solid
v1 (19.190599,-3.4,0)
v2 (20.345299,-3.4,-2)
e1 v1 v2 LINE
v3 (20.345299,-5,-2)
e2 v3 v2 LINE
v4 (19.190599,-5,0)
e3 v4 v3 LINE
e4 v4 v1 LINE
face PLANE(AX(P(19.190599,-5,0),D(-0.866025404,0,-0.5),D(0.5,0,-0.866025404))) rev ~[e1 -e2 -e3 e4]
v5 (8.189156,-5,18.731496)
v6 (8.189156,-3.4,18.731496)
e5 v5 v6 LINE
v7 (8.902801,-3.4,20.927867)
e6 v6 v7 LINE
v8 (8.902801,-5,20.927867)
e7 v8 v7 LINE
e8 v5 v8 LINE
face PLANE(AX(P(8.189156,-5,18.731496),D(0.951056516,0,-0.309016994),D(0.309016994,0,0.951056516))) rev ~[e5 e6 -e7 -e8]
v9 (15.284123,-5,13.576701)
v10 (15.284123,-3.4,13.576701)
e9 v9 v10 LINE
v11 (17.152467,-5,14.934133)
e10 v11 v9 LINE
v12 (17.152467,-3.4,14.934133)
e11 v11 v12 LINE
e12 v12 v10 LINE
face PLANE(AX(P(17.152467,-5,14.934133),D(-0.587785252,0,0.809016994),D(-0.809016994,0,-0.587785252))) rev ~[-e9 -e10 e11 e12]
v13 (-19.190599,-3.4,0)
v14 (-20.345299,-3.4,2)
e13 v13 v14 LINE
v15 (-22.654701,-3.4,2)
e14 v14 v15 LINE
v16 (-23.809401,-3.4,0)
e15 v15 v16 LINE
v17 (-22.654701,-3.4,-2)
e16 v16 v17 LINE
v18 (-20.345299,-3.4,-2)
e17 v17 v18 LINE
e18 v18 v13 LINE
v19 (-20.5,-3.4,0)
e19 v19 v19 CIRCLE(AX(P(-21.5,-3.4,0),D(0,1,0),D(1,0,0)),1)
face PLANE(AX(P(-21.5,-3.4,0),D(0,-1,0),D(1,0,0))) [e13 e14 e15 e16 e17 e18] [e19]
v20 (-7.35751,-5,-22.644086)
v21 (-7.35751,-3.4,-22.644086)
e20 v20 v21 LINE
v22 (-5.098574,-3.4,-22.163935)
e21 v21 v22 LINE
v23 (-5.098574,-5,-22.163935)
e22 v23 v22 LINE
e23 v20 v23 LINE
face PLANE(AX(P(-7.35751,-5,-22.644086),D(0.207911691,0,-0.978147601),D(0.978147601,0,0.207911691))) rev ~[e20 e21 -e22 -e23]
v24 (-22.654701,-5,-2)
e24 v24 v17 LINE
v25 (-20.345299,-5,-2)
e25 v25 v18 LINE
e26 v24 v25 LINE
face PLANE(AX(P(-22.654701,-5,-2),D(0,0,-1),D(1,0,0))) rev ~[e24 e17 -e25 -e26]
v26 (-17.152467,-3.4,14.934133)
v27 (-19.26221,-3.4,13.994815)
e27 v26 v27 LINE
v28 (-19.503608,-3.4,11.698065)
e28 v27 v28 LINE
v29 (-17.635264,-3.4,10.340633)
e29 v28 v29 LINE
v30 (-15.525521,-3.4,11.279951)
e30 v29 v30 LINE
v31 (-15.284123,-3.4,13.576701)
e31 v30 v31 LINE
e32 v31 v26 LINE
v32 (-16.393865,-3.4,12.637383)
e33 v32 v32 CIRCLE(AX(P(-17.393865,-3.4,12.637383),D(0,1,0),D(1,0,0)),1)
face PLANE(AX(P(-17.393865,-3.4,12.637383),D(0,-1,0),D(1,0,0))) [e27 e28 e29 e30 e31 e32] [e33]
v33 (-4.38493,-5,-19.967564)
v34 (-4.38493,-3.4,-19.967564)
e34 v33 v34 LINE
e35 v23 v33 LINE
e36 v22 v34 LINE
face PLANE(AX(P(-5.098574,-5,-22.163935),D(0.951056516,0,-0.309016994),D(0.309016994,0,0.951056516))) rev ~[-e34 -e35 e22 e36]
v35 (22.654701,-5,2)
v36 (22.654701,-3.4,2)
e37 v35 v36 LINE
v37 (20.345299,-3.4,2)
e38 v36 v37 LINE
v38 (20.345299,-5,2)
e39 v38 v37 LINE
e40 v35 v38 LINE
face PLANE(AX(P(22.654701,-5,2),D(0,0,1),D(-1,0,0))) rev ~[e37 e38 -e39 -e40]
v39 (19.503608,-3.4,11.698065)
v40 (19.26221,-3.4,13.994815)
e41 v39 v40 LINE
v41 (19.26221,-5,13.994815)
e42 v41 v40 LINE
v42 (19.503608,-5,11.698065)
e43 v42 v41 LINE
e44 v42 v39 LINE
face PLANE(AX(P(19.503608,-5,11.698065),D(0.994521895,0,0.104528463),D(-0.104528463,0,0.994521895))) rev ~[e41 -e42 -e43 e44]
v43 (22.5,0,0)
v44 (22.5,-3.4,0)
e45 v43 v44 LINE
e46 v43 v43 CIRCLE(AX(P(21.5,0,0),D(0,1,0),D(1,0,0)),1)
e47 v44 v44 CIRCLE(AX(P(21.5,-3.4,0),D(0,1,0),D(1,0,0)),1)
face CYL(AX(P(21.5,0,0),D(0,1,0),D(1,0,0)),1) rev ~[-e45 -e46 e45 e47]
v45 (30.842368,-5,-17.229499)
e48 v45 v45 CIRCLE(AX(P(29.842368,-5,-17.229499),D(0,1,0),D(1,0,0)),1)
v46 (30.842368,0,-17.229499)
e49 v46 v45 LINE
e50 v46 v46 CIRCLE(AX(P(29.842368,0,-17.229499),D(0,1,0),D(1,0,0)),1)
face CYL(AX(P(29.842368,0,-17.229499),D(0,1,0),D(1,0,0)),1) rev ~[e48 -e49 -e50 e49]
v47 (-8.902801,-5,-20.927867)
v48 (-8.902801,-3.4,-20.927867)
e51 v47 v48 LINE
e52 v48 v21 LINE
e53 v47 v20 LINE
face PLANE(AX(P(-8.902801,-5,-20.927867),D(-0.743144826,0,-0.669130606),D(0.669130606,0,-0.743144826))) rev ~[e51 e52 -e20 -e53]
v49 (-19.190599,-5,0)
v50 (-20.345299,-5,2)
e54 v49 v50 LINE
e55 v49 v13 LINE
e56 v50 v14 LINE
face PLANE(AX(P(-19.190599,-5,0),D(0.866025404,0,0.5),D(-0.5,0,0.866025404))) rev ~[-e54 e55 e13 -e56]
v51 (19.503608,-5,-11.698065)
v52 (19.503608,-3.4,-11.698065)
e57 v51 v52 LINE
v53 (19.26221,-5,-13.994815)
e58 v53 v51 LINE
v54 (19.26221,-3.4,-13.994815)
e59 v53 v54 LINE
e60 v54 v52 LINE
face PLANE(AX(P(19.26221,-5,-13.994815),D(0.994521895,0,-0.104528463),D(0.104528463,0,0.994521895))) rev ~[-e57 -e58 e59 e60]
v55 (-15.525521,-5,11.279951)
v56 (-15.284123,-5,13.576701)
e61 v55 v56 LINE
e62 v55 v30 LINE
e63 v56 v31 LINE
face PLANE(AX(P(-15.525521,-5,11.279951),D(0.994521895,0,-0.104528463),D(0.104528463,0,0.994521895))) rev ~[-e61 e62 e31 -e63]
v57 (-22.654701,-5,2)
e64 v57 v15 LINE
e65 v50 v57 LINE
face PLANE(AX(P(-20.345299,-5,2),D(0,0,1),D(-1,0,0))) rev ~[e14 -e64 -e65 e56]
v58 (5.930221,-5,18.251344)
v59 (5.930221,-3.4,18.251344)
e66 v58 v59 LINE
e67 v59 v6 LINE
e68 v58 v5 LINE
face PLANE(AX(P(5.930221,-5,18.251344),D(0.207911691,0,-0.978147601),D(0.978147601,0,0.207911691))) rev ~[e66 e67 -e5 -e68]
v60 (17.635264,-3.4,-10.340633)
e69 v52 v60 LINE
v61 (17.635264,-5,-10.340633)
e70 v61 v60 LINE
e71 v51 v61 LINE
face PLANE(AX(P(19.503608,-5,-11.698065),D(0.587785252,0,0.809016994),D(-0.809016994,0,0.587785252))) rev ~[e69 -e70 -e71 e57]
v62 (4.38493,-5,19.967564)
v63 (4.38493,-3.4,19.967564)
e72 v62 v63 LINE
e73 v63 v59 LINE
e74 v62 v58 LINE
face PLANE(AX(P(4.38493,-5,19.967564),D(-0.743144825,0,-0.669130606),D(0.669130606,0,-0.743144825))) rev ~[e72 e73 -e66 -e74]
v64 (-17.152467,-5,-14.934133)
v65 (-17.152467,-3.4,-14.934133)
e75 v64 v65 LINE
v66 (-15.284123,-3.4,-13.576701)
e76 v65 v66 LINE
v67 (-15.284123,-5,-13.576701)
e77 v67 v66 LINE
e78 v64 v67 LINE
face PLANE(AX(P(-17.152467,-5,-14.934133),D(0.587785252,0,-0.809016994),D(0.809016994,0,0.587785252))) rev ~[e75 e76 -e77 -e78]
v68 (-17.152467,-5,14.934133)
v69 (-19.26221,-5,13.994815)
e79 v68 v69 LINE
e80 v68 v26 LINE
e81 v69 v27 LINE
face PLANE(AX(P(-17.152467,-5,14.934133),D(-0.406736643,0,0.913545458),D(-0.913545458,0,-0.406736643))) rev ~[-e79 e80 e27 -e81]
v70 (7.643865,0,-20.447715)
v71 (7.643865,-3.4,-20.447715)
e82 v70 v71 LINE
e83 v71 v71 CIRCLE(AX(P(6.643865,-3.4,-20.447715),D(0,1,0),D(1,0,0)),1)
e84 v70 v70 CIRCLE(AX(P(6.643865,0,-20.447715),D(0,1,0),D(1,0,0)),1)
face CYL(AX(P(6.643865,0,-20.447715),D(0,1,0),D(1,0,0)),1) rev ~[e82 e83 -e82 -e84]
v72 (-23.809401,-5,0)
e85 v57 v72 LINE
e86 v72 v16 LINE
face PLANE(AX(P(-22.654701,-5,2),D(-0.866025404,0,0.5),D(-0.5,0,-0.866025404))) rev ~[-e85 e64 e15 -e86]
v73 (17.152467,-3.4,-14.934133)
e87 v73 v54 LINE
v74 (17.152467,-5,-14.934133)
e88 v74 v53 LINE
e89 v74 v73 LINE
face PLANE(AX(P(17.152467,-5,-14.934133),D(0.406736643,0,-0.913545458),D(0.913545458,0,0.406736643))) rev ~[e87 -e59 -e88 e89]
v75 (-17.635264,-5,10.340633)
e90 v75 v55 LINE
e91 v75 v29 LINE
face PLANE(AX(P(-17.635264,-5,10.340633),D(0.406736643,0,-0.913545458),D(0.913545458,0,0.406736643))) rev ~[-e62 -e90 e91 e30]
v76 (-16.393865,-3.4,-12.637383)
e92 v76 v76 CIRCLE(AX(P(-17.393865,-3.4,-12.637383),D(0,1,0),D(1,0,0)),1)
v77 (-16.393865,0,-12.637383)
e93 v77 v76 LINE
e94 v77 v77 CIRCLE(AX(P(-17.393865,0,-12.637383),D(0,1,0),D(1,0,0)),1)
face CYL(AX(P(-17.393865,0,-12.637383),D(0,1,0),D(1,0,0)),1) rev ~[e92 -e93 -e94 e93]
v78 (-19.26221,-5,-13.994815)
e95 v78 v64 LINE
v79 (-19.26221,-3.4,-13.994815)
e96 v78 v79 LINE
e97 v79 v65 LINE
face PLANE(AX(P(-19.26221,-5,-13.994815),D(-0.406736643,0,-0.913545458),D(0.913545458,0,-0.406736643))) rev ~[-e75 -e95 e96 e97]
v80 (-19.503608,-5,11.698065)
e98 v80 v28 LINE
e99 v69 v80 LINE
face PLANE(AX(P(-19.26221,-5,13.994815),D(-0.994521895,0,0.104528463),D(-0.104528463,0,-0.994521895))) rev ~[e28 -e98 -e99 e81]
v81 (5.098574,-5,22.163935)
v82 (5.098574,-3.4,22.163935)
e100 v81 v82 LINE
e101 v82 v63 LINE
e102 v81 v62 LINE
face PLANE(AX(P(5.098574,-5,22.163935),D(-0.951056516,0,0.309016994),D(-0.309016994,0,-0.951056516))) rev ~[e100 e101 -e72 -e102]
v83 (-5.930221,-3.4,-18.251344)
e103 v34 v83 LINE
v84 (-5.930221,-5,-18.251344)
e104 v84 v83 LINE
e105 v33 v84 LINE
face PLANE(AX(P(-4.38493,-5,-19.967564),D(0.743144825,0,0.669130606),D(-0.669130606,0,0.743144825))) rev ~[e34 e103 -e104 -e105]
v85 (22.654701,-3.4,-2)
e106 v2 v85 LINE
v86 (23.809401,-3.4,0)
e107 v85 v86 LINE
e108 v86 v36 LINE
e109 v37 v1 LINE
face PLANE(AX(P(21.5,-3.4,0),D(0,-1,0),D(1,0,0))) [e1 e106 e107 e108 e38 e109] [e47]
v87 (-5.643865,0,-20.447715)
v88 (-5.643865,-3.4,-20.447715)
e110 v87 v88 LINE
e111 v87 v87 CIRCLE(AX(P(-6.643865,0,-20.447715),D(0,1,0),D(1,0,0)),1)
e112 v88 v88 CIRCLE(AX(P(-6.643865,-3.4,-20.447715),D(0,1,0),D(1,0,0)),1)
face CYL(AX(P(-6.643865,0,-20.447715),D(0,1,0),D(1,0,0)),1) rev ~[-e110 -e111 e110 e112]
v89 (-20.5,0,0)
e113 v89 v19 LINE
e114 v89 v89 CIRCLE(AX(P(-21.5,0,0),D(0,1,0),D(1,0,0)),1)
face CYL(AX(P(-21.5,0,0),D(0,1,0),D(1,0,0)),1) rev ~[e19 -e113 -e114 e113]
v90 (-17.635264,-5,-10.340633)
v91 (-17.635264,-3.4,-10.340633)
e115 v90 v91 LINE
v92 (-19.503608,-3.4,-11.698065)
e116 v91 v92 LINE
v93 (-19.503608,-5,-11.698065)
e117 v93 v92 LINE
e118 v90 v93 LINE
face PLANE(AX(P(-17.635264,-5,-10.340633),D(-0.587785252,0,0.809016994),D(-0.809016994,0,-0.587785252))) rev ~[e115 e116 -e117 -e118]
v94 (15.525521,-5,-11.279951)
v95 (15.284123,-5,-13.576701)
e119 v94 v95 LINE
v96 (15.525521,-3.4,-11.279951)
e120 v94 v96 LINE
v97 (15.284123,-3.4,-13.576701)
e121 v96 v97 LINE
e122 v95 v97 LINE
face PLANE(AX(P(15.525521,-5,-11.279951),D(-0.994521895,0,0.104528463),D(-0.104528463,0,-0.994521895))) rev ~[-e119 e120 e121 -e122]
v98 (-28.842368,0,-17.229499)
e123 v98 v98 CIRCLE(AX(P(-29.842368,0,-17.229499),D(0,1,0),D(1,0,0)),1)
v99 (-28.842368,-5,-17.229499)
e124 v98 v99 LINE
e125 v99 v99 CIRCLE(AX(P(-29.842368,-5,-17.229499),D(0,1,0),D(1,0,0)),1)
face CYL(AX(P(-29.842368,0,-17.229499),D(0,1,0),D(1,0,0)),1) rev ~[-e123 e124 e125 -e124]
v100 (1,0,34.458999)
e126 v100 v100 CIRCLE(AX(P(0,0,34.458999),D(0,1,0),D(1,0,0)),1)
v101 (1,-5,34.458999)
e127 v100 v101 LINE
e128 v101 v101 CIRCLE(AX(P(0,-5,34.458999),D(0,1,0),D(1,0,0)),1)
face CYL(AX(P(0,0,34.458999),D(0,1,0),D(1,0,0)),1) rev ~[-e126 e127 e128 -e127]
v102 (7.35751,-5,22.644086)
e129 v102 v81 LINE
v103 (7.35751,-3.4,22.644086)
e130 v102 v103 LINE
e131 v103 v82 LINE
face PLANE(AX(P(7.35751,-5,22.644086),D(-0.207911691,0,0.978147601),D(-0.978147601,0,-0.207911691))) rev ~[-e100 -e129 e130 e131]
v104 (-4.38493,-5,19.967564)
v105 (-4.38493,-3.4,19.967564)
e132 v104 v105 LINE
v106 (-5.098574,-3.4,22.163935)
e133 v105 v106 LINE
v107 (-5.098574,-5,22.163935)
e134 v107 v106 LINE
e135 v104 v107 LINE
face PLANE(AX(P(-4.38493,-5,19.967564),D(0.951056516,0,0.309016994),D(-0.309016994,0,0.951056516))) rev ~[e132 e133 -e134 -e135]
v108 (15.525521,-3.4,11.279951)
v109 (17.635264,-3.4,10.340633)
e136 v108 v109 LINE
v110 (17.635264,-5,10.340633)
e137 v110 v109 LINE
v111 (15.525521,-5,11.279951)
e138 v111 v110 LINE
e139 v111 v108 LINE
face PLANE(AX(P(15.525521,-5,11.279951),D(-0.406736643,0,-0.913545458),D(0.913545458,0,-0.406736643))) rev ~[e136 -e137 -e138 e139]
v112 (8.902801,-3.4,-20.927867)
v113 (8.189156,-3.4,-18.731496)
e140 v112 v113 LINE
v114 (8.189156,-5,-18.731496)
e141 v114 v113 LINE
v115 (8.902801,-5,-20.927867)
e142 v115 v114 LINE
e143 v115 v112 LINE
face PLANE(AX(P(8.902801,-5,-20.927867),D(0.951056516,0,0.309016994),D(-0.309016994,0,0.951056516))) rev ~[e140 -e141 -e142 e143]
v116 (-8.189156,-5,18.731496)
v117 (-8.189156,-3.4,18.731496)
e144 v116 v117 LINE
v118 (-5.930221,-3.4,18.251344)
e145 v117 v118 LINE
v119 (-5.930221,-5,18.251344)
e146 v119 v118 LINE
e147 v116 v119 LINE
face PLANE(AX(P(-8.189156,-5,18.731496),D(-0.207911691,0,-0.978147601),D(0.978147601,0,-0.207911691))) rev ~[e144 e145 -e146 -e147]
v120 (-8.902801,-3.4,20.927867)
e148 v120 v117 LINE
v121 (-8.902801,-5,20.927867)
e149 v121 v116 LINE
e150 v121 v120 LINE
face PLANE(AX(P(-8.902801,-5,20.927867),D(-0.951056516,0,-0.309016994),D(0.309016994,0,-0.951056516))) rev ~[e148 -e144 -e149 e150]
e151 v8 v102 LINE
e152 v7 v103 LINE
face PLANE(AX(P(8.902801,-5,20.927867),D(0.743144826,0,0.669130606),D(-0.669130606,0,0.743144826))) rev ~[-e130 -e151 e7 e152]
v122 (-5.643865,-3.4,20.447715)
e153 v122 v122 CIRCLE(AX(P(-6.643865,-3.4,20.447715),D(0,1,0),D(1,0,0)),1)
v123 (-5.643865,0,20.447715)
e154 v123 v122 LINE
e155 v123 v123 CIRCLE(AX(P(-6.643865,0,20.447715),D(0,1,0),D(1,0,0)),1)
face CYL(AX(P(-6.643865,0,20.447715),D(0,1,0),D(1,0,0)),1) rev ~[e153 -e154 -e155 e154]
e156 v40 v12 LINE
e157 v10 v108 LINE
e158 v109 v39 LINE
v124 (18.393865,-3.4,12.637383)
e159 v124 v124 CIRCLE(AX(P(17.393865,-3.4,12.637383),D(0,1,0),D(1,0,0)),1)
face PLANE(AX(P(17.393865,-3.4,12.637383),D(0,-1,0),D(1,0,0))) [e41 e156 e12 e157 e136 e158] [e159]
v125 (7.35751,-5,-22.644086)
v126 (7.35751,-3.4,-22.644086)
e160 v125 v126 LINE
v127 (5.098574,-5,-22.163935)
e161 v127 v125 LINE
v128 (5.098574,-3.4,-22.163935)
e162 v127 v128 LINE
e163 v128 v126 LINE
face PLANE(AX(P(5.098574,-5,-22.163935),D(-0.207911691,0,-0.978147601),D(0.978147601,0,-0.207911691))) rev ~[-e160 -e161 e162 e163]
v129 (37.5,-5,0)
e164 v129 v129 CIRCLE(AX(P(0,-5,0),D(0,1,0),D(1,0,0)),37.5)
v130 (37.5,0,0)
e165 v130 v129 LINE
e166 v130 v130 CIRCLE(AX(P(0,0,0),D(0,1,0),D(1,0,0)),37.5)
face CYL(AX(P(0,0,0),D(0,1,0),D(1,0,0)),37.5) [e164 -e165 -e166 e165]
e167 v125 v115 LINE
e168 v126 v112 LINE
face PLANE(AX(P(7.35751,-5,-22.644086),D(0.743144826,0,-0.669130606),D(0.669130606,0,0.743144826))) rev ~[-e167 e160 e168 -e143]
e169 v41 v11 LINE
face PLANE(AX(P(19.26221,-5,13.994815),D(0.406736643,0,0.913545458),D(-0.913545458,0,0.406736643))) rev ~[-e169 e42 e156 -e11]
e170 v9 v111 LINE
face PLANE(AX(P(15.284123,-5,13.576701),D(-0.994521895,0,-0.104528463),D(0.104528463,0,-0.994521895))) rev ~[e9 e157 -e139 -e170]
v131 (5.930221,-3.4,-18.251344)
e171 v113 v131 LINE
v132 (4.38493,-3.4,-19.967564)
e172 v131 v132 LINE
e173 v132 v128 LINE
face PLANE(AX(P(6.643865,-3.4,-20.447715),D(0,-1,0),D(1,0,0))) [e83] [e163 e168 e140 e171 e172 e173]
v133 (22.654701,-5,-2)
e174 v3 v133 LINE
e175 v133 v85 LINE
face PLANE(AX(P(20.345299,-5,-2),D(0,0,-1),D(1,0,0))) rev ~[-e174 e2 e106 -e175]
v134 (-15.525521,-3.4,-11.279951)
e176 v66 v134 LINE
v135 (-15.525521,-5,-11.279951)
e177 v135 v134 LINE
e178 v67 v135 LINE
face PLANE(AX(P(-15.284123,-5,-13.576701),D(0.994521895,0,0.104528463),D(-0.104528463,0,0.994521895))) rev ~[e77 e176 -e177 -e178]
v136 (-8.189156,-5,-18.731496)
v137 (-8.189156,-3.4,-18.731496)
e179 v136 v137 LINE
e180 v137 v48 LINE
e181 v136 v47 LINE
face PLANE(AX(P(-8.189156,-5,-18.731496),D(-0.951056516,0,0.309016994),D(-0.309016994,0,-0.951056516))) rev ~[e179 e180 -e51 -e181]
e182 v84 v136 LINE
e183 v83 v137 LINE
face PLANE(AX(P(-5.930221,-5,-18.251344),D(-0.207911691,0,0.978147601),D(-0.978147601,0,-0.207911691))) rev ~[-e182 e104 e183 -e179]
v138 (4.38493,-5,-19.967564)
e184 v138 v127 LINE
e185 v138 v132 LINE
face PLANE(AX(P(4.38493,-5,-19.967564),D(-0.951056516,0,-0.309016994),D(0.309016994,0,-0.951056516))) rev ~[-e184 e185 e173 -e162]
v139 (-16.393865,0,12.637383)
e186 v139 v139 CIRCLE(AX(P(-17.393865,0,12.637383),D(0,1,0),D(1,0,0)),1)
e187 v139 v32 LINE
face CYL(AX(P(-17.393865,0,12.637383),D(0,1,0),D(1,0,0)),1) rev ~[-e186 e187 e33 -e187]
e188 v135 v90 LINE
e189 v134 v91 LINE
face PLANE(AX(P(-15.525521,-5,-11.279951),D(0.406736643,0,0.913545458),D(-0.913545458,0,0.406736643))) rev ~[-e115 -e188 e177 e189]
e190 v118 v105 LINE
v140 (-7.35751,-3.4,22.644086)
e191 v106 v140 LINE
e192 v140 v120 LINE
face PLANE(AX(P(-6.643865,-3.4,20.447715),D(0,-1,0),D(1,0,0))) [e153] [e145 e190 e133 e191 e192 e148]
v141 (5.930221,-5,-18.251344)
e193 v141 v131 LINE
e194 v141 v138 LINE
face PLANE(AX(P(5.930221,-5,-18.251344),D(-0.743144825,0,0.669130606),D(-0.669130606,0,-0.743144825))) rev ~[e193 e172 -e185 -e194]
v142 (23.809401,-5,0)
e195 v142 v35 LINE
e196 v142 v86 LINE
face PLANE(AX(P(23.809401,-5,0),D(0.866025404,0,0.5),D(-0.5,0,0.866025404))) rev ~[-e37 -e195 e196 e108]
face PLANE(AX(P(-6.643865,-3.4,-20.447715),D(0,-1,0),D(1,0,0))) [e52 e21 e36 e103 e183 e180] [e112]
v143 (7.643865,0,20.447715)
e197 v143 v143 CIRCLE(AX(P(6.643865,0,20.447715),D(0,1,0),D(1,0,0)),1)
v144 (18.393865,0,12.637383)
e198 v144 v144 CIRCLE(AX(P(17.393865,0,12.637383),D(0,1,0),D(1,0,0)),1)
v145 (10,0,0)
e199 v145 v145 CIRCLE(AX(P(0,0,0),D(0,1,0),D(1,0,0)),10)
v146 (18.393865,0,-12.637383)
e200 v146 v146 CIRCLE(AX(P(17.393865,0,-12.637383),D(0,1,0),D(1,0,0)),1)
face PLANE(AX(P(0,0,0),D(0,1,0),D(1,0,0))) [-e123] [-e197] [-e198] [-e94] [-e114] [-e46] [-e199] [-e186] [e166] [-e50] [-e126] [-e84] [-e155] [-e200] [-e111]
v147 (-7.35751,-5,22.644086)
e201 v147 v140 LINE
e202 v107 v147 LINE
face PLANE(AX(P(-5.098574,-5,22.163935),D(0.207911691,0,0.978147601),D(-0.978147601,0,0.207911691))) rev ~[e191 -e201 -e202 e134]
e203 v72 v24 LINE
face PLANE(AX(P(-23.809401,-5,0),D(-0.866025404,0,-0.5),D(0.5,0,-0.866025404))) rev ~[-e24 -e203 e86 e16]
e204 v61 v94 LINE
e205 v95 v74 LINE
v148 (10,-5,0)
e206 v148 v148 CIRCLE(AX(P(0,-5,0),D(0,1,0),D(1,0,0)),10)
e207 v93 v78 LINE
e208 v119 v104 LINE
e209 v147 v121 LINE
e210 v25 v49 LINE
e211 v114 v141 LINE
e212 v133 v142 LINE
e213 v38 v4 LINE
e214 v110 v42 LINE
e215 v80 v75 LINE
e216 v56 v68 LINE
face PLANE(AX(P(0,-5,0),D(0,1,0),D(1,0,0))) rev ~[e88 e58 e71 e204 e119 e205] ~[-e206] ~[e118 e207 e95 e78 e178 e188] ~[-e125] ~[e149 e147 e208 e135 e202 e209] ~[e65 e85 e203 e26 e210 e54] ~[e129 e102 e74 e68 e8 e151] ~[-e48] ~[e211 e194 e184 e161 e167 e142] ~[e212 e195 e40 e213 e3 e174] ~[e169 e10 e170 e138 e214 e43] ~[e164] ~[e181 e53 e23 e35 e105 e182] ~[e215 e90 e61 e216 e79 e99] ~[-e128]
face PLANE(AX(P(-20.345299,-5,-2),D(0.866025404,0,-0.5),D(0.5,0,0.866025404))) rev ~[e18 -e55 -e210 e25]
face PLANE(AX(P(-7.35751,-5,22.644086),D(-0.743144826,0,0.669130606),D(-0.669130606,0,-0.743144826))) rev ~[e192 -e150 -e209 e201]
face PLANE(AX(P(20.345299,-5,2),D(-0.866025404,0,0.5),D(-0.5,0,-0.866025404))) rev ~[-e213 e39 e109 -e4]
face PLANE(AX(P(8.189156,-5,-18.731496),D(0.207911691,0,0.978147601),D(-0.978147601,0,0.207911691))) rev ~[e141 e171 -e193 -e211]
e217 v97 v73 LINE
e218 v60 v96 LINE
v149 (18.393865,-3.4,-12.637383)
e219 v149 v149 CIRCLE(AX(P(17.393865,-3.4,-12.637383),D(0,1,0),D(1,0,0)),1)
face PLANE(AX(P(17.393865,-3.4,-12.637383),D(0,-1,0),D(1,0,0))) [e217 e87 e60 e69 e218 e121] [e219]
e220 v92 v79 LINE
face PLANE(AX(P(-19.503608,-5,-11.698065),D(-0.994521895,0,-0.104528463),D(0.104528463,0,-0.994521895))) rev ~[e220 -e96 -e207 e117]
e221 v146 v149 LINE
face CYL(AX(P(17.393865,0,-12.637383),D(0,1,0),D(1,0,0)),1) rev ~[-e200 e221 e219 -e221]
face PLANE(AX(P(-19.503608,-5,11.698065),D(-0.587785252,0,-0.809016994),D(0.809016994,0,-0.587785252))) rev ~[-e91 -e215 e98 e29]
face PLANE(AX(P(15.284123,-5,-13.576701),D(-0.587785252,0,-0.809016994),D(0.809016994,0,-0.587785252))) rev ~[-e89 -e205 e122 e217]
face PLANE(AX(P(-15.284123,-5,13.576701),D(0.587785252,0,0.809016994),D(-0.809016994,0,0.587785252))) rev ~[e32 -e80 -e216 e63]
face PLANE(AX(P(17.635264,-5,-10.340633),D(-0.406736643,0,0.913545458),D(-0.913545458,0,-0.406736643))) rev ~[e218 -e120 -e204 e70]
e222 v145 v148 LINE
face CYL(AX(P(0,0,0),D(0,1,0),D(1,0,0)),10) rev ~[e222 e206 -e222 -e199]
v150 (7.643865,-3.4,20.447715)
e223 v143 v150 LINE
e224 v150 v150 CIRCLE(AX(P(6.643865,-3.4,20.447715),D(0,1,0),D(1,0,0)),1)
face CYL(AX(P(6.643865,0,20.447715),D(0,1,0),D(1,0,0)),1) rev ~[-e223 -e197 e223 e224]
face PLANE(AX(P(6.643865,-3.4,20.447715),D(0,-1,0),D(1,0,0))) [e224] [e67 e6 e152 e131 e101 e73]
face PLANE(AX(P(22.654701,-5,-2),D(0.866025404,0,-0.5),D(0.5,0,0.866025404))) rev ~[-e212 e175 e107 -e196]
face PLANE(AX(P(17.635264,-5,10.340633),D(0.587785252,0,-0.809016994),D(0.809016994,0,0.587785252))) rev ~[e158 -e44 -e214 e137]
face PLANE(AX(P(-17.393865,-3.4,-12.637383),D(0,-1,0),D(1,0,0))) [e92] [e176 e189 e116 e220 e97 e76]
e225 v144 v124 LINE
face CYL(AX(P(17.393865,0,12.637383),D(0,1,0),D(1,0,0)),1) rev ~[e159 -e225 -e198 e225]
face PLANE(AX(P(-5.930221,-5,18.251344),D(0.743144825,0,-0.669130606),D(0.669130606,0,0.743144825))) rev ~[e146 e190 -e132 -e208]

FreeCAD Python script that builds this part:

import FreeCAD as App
import Part
import Sketcher

V = App.Vector
Q = App.Units.Quantity

doc = App.newDocument("Part")
body = doc.addObject("PartDesign::Body", "Body")

# Sketch on XZ plane
sketch1 = body.newObject("Sketcher::SketchObject", "Sketch")
sketch1.AttachmentSupport = (doc.getObject("XZ_Plane"), [""])
sketch1.MapMode = "FlatFace"
sketch1.addGeometry(Part.Circle(V(0, 0, 0), V(0, 0, 1), 37.5), False)
sketch1.addConstraint([
    Sketcher.Constraint("Coincident", 0, 3, -1, 1),
    Sketcher.Constraint("Diameter", 0, Q("75 mm")),
])
pad1 = body.newObject("PartDesign::Pad", "Pad")
pad1.Profile = sketch1
pad1.Length = 5

# Sketch on XZ plane
sketch2 = body.newObject("Sketcher::SketchObject", "Sketch001")
sketch2.AttachmentSupport = (doc.getObject("XZ_Plane"), [""])
sketch2.MapMode = "FlatFace"
sketch2.addGeometry(Part.Circle(V(-21.5, 0, 0), V(0, 0, 1), 1), False)
sketch2.addConstraint([
    Sketcher.Constraint("PointOnObject", 0, 3, -1),
    Sketcher.Constraint("Diameter", 0, Q("2 mm")),
    Sketcher.Constraint("DistanceX", 0, 3, -1, 1, Q("21.5 mm")),
])
pocket1 = body.newObject("PartDesign::Pocket", "Pocket")
pocket1.Profile = sketch2
pocket1.Type = "UpToFirst"
pocket1.Reversed = True

# Sketch on XZ plane
sketch3 = body.newObject("Sketcher::SketchObject", "Sketch002")
sketch3.AttachmentSupport = (doc.getObject("XZ_Plane"), [""])
sketch3.MapMode = "FlatFace"
sketch3.addGeometry(Part.Circle(V(-17.393865, -12.637383, 0), V(0, 0, 1), 1), False)
sketch3.addConstraint([
    Sketcher.Constraint("Diameter", 0, Q("2 mm")),
    Sketcher.Constraint("DistanceX", 0, 3, -1, 1, Q("17.393865 mm")),
    Sketcher.Constraint("DistanceY", 0, 3, -1, 1, Q("12.637383 mm")),
])
pocket2 = body.newObject("PartDesign::Pocket", "Pocket001")
pocket2.Profile = sketch3
pocket2.Type = "UpToFirst"
pocket2.Reversed = True

# Sketch on XZ plane
sketch4 = body.newObject("Sketcher::SketchObject", "Sketch003")
sketch4.AttachmentSupport = (doc.getObject("XZ_Plane"), [""])
sketch4.MapMode = "FlatFace"
sketch4.addGeometry(Part.Circle(V(-6.643865, -20.447715, 0), V(0, 0, 1), 1), False)
sketch4.addConstraint([
    Sketcher.Constraint("Diameter", 0, Q("2 mm")),
    Sketcher.Constraint("DistanceX", 0, 3, -1, 1, Q("6.643865 mm")),
    Sketcher.Constraint("DistanceY", 0, 3, -1, 1, Q("20.447715 mm")),
])
pocket3 = body.newObject("PartDesign::Pocket", "Pocket002")
pocket3.Profile = sketch4
pocket3.Type = "UpToFirst"
pocket3.Reversed = True

# Sketch on XZ plane
sketch5 = body.newObject("Sketcher::SketchObject", "Sketch004")
sketch5.AttachmentSupport = (doc.getObject("XZ_Plane"), [""])
sketch5.MapMode = "FlatFace"
sketch5.addGeometry(Part.Circle(V(6.643865, -20.447715, 0), V(0, 0, 1), 1), False)
sketch5.addConstraint([
    Sketcher.Constraint("Diameter", 0, Q("2 mm")),
    Sketcher.Constraint("DistanceX", -1, 1, 0, 3, Q("6.643865 mm")),
    Sketcher.Constraint("DistanceY", 0, 3, -1, 1, Q("20.447715 mm")),
])
pocket4 = body.newObject("PartDesign::Pocket", "Pocket003")
pocket4.Profile = sketch5
pocket4.Type = "UpToFirst"
pocket4.Reversed = True

# Sketch on XZ plane
sketch6 = body.newObject("Sketcher::SketchObject", "Sketch005")
sketch6.AttachmentSupport = (doc.getObject("XZ_Plane"), [""])
sketch6.MapMode = "FlatFace"
sketch6.addGeometry(Part.Circle(V(17.393865, -12.637383, 0), V(0, 0, 1), 1), False)
sketch6.addConstraint([
    Sketcher.Constraint("Diameter", 0, Q("2 mm")),
    Sketcher.Constraint("DistanceX", -1, 1, 0, 3, Q("17.393865 mm")),
    Sketcher.Constraint("DistanceY", 0, 3, -1, 1, Q("12.637383 mm")),
])
pocket5 = body.newObject("PartDesign::Pocket", "Pocket004")
pocket5.Profile = sketch6
pocket5.Type = "UpToFirst"
pocket5.Reversed = True

# Sketch on XZ plane
sketch7 = body.newObject("Sketcher::SketchObject", "Sketch006")
sketch7.AttachmentSupport = (doc.getObject("XZ_Plane"), [""])
sketch7.MapMode = "FlatFace"
sketch7.addGeometry(Part.Circle(V(21.5, 0, 0), V(0, 0, 1), 1), False)
sketch7.addConstraint([
    Sketcher.Constraint("PointOnObject", 0, 3, -1),
    Sketcher.Constraint("Diameter", 0, Q("2 mm")),
    Sketcher.Constraint("DistanceX", -1, 1, 0, 3, Q("21.5 mm")),
])
pocket6 = body.newObject("PartDesign::Pocket", "Pocket005")
pocket6.Profile = sketch7
pocket6.Type = "UpToFirst"
pocket6.Reversed = True

# Sketch on XZ plane
sketch8 = body.newObject("Sketcher::SketchObject", "Sketch007")
sketch8.AttachmentSupport = (doc.getObject("XZ_Plane"), [""])
sketch8.MapMode = "FlatFace"
sketch8.addGeometry(Part.Circle(V(17.393865, 12.637383, 0), V(0, 0, 1), 1), False)
sketch8.addConstraint([
    Sketcher.Constraint("Diameter", 0, Q("2 mm")),
    Sketcher.Constraint("DistanceX", -1, 1, 0, 3, Q("17.393865 mm")),
    Sketcher.Constraint("DistanceY", -1, 1, 0, 3, Q("12.637383 mm")),
])
pocket7 = body.newObject("PartDesign::Pocket", "Pocket006")
pocket7.Profile = sketch8
pocket7.Type = "UpToFirst"
pocket7.Reversed = True

# Sketch on XZ plane
sketch9 = body.newObject("Sketcher::SketchObject", "Sketch008")
sketch9.AttachmentSupport = (doc.getObject("XZ_Plane"), [""])
sketch9.MapMode = "FlatFace"
sketch9.addGeometry(Part.Circle(V(6.643865, 20.447715, 0), V(0, 0, 1), 1), False)
sketch9.addConstraint([
    Sketcher.Constraint("Diameter", 0, Q("2 mm")),
    Sketcher.Constraint("DistanceX", -1, 1, 0, 3, Q("6.643865 mm")),
    Sketcher.Constraint("DistanceY", -1, 1, 0, 3, Q("20.447715 mm")),
])
pocket8 = body.newObject("PartDesign::Pocket", "Pocket007")
pocket8.Profile = sketch9
pocket8.Type = "UpToFirst"
pocket8.Reversed = True

# Sketch on XZ plane
sketch10 = body.newObject("Sketcher::SketchObject", "Sketch009")
sketch10.AttachmentSupport = (doc.getObject("XZ_Plane"), [""])
sketch10.MapMode = "FlatFace"
sketch10.addGeometry(Part.Circle(V(-6.643865, 20.447715, 0), V(0, 0, 1), 1), False)
sketch10.addConstraint([
    Sketcher.Constraint("Diameter", 0, Q("2 mm")),
    Sketcher.Constraint("DistanceX", 0, 3, -1, 1, Q("6.643865 mm")),
    Sketcher.Constraint("DistanceY", -1, 1, 0, 3, Q("20.447715 mm")),
])
pocket9 = body.newObject("PartDesign::Pocket", "Pocket008")
pocket9.Profile = sketch10
pocket9.Type = "UpToFirst"
pocket9.Reversed = True

# Sketch on XZ plane
sketch11 = body.newObject("Sketcher::SketchObject", "Sketch010")
sketch11.AttachmentSupport = (doc.getObject("XZ_Plane"), [""])
sketch11.MapMode = "FlatFace"
sketch11.addGeometry(Part.Circle(V(-17.393865, 12.637383, 0), V(0, 0, 1), 1), False)
sketch11.addConstraint([
    Sketcher.Constraint("Diameter", 0, Q("2 mm")),
    Sketcher.Constraint("DistanceX", 0, 3, -1, 1, Q("17.393865 mm")),
    Sketcher.Constraint("DistanceY", -1, 1, 0, 3, Q("12.637383 mm")),
])
pocket10 = body.newObject("PartDesign::Pocket", "Pocket009")
pocket10.Profile = sketch11
pocket10.Type = "UpToFirst"
pocket10.Reversed = True

# Sketch on XZ plane
sketch12 = body.newObject("Sketcher::SketchObject", "Sketch011")
sketch12.AttachmentSupport = (doc.getObject("XZ_Plane"), [""])
sketch12.MapMode = "FlatFace"
sketch12.AttachmentOffset = App.Placement(V(0, 0, 5), App.Rotation())
sketch12.addGeometry([
    Part.LineSegment(V(-15.525521, 11.279951, 0), V(-15.284123, 13.576701, 0)),  # 0
    Part.LineSegment(V(-15.284123, 13.576701, 0), V(-17.152467, 14.934133, 0)),  # 1
    Part.LineSegment(V(-17.152467, 14.934133, 0), V(-19.26221, 13.994815, 0)),  # 2
    Part.LineSegment(V(-19.26221, 13.994815, 0), V(-19.503608, 11.698065, 0)),  # 3
    Part.LineSegment(V(-19.503608, 11.698065, 0), V(-17.635264, 10.340633, 0)),  # 4
    Part.LineSegment(V(-17.635264, 10.340633, 0), V(-15.525521, 11.279951, 0)),  # 5
    Part.LineSegment(V(-19.190599, 0, 0), V(-20.345299, 2, 0)),  # 6
    Part.LineSegment(V(-20.345299, 2, 0), V(-22.654701, 2, 0)),  # 7
    Part.LineSegment(V(-22.654701, 2, 0), V(-23.809401, 0, 0)),  # 8
    Part.LineSegment(V(-23.809401, 0, 0), V(-22.654701, -2, 0)),  # 9
    Part.LineSegment(V(-22.654701, -2, 0), V(-20.345299, -2, 0)),  # 10
    Part.LineSegment(V(-20.345299, -2, 0), V(-19.190599, 0, 0)),  # 11
    Part.LineSegment(V(-5.930221, 18.251344, 0), V(-4.38493, 19.967564, 0)),  # 12
    Part.LineSegment(V(-4.38493, 19.967564, 0), V(-5.098574, 22.163935, 0)),  # 13
    Part.LineSegment(V(-5.098574, 22.163935, 0), V(-7.35751, 22.644086, 0)),  # 14
    Part.LineSegment(V(-7.35751, 22.644086, 0), V(-8.902801, 20.927867, 0)),  # 15
    Part.LineSegment(V(-8.902801, 20.927867, 0), V(-8.189156, 18.731496, 0)),  # 16
    Part.LineSegment(V(-8.189156, 18.731496, 0), V(-5.930221, 18.251344, 0)),  # 17
    Part.LineSegment(V(5.930221, 18.251344, 0), V(8.189156, 18.731496, 0)),  # 18
    Part.LineSegment(V(8.189156, 18.731496, 0), V(8.902801, 20.927867, 0)),  # 19
    Part.LineSegment(V(8.902801, 20.927867, 0), V(7.35751, 22.644086, 0)),  # 20
    Part.LineSegment(V(7.35751, 22.644086, 0), V(5.098574, 22.163935, 0)),  # 21
    Part.LineSegment(V(5.098574, 22.163935, 0), V(4.38493, 19.967564, 0)),  # 22
    Part.LineSegment(V(4.38493, 19.967564, 0), V(5.930221, 18.251344, 0)),  # 23
    Part.LineSegment(V(15.525521, 11.279951, 0), V(17.635264, 10.340633, 0)),  # 24
    Part.LineSegment(V(17.635264, 10.340633, 0), V(19.503608, 11.698065, 0)),  # 25
    Part.LineSegment(V(19.503608, 11.698065, 0), V(19.26221, 13.994815, 0)),  # 26
    Part.LineSegment(V(19.26221, 13.994815, 0), V(17.152467, 14.934133, 0)),  # 27
    Part.LineSegment(V(17.152467, 14.934133, 0), V(15.284123, 13.576701, 0)),  # 28
    Part.LineSegment(V(15.284123, 13.576701, 0), V(15.525521, 11.279951, 0)),  # 29
    Part.LineSegment(V(19.190599, 0, 0), V(20.345299, -2, 0)),  # 30
    Part.LineSegment(V(20.345299, -2, 0), V(22.654701, -2, 0)),  # 31
    Part.LineSegment(V(22.654701, -2, 0), V(23.809401, 0, 0)),  # 32
    Part.LineSegment(V(23.809401, 0, 0), V(22.654701, 2, 0)),  # 33
    Part.LineSegment(V(22.654701, 2, 0), V(20.345299, 2, 0)),  # 34
    Part.LineSegment(V(20.345299, 2, 0), V(19.190599, 0, 0)),  # 35
    Part.LineSegment(V(15.525521, -11.279951, 0), V(15.284123, -13.576701, 0)),  # 36
    Part.LineSegment(V(15.284123, -13.576701, 0), V(17.152467, -14.934133, 0)),  # 37
    Part.LineSegment(V(17.152467, -14.934133, 0), V(19.26221, -13.994815, 0)),  # 38
    Part.LineSegment(V(19.26221, -13.994815, 0), V(19.503608, -11.698065, 0)),  # 39
    Part.LineSegment(V(19.503608, -11.698065, 0), V(17.635264, -10.340633, 0)),  # 40
    Part.LineSegment(V(17.635264, -10.340633, 0), V(15.525521, -11.279951, 0)),  # 41
    Part.LineSegment(V(5.930221, -18.251344, 0), V(4.38493, -19.967564, 0)),  # 42
    Part.LineSegment(V(4.38493, -19.967564, 0), V(5.098574, -22.163935, 0)),  # 43
    Part.LineSegment(V(5.098574, -22.163935, 0), V(7.35751, -22.644086, 0)),  # 44
    Part.LineSegment(V(7.35751, -22.644086, 0), V(8.902801, -20.927867, 0)),  # 45
    Part.LineSegment(V(8.902801, -20.927867, 0), V(8.189156, -18.731496, 0)),  # 46
    Part.LineSegment(V(8.189156, -18.731496, 0), V(5.930221, -18.251344, 0)),  # 47
    Part.LineSegment(V(-5.930221, -18.251344, 0), V(-8.189156, -18.731496, 0)),  # 48
    Part.LineSegment(V(-8.189156, -18.731496, 0), V(-8.902801, -20.927867, 0)),  # 49
    Part.LineSegment(V(-8.902801, -20.927867, 0), V(-7.35751, -22.644086, 0)),  # 50
    Part.LineSegment(V(-7.35751, -22.644086, 0), V(-5.098574, -22.163935, 0)),  # 51
    Part.LineSegment(V(-5.098574, -22.163935, 0), V(-4.38493, -19.967564, 0)),  # 52
    Part.LineSegment(V(-4.38493, -19.967564, 0), V(-5.930221, -18.251344, 0)),  # 53
    Part.LineSegment(V(-15.525521, -11.279951, 0), V(-17.635264, -10.340633, 0)),  # 54
    Part.LineSegment(V(-17.635264, -10.340633, 0), V(-19.503608, -11.698065, 0)),  # 55
    Part.LineSegment(V(-19.503608, -11.698065, 0), V(-19.26221, -13.994815, 0)),  # 56
    Part.LineSegment(V(-19.26221, -13.994815, 0), V(-17.152467, -14.934133, 0)),  # 57
    Part.LineSegment(V(-17.152467, -14.934133, 0), V(-15.284123, -13.576701, 0)),  # 58
    Part.LineSegment(V(-15.284123, -13.576701, 0), V(-15.525521, -11.279951, 0)),  # 59
], False)
sketch12.addConstraint([
    Sketcher.Constraint("Coincident", 0, 2, 1, 1),
    Sketcher.Constraint("Coincident", 1, 2, 2, 1),
    Sketcher.Constraint("Coincident", 2, 2, 3, 1),
    Sketcher.Constraint("Coincident", 3, 2, 4, 1),
    Sketcher.Constraint("Coincident", 4, 2, 5, 1),
    Sketcher.Constraint("Coincident", 5, 2, 0, 1),
    Sketcher.Constraint("Coincident", 6, 2, 7, 1),
    Sketcher.Constraint("Coincident", 7, 2, 8, 1),
    Sketcher.Constraint("Coincident", 8, 2, 9, 1),
    Sketcher.Constraint("Coincident", 9, 2, 10, 1),
    Sketcher.Constraint("Coincident", 10, 2, 11, 1),
    Sketcher.Constraint("Coincident", 11, 2, 6, 1),
    Sketcher.Constraint("Coincident", 12, 2, 13, 1),
    Sketcher.Constraint("Coincident", 13, 2, 14, 1),
    Sketcher.Constraint("Coincident", 14, 2, 15, 1),
    Sketcher.Constraint("Coincident", 15, 2, 16, 1),
    Sketcher.Constraint("Coincident", 16, 2, 17, 1),
    Sketcher.Constraint("Coincident", 17, 2, 12, 1),
    Sketcher.Constraint("Coincident", 18, 2, 19, 1),
    Sketcher.Constraint("Coincident", 19, 2, 20, 1),
    Sketcher.Constraint("Coincident", 20, 2, 21, 1),
    Sketcher.Constraint("Coincident", 21, 2, 22, 1),
    Sketcher.Constraint("Coincident", 22, 2, 23, 1),
    Sketcher.Constraint("Coincident", 23, 2, 18, 1),
    Sketcher.Constraint("Coincident", 24, 2, 25, 1),
    Sketcher.Constraint("Coincident", 25, 2, 26, 1),
    Sketcher.Constraint("Coincident", 26, 2, 27, 1),
    Sketcher.Constraint("Coincident", 27, 2, 28, 1),
    Sketcher.Constraint("Coincident", 28, 2, 29, 1),
    Sketcher.Constraint("Coincident", 29, 2, 24, 1),
    Sketcher.Constraint("Coincident", 30, 2, 31, 1),
    Sketcher.Constraint("Coincident", 31, 2, 32, 1),
    Sketcher.Constraint("Coincident", 32, 2, 33, 1),
    Sketcher.Constraint("Coincident", 33, 2, 34, 1),
    Sketcher.Constraint("Coincident", 34, 2, 35, 1),
    Sketcher.Constraint("Coincident", 35, 2, 30, 1),
    Sketcher.Constraint("Coincident", 36, 2, 37, 1),
    Sketcher.Constraint("Coincident", 37, 2, 38, 1),
    Sketcher.Constraint("Coincident", 38, 2, 39, 1),
    Sketcher.Constraint("Coincident", 39, 2, 40, 1),
    Sketcher.Constraint("Coincident", 40, 2, 41, 1),
    Sketcher.Constraint("Coincident", 41, 2, 36, 1),
    Sketcher.Constraint("Coincident", 42, 2, 43, 1),
    Sketcher.Constraint("Coincident", 43, 2, 44, 1),
    Sketcher.Constraint("Coincident", 44, 2, 45, 1),
    Sketcher.Constraint("Coincident", 45, 2, 46, 1),
    Sketcher.Constraint("Coincident", 46, 2, 47, 1),
    Sketcher.Constraint("Coincident", 47, 2, 42, 1),
    Sketcher.Constraint("Coincident", 48, 2, 49, 1),
    Sketcher.Constraint("Coincident", 49, 2, 50, 1),
    Sketcher.Constraint("Coincident", 50, 2, 51, 1),
    Sketcher.Constraint("Coincident", 51, 2, 52, 1),
    Sketcher.Constraint("Coincident", 52, 2, 53, 1),
    Sketcher.Constraint("Coincident", 53, 2, 48, 1),
    Sketcher.Constraint("Coincident", 54, 2, 55, 1),
    Sketcher.Constraint("Coincident", 55, 2, 56, 1),
    Sketcher.Constraint("Coincident", 56, 2, 57, 1),
    Sketcher.Constraint("Coincident", 57, 2, 58, 1),
    Sketcher.Constraint("Coincident", 58, 2, 59, 1),
    Sketcher.Constraint("Coincident", 59, 2, 54, 1),
    Sketcher.Constraint("Horizontal", 7),
    Sketcher.Constraint("Horizontal", 10),
    Sketcher.Constraint("Horizontal", 31),
    Sketcher.Constraint("Horizontal", 34),
    Sketcher.Constraint("Symmetric", 6, 2, 30, 2, -1, 1),
    Sketcher.Constraint("Symmetric", 8, 2, 32, 2, -1, 1),
    Sketcher.Constraint("Symmetric", 9, 2, 33, 2, -1, 1),
    Sketcher.Constraint("Symmetric", 11, 2, 35, 2, -1, 1),
    Sketcher.Constraint("Symmetric", 0, 2, 36, 2, -1, 1),
    Sketcher.Constraint("Symmetric", 1, 2, 37, 2, -1, 1),
    Sketcher.Constraint("Symmetric", 2, 2, 38, 2, -1, 1),
    Sketcher.Constraint("Symmetric", 3, 2, 39, 2, -1, 1),
    Sketcher.Constraint("Symmetric", 4, 2, 40, 2, -1, 1),
    Sketcher.Constraint("Symmetric", 5, 2, 41, 2, -1, 1),
    Sketcher.Constraint("Symmetric", 12, 2, 42, 2, -1, 1),
    Sketcher.Constraint("Symmetric", 13, 2, 43, 2, -1, 1),
    Sketcher.Constraint("Symmetric", 14, 2, 44, 2, -1, 1),
    Sketcher.Constraint("Symmetric", 15, 2, 45, 2, -1, 1),
    Sketcher.Constraint("Symmetric", 16, 2, 46, 2, -1, 1),
    Sketcher.Constraint("Symmetric", 17, 2, 47, 2, -1, 1),
    Sketcher.Constraint("Symmetric", 18, 2, 48, 2, -1, 1),
    Sketcher.Constraint("Symmetric", 19, 2, 49, 2, -1, 1),
    Sketcher.Constraint("Symmetric", 20, 2, 50, 2, -1, 1),
    Sketcher.Constraint("Symmetric", 21, 2, 51, 2, -1, 1),
    Sketcher.Constraint("Symmetric", 22, 2, 52, 2, -1, 1),
    Sketcher.Constraint("Symmetric", 23, 2, 53, 2, -1, 1),
    Sketcher.Constraint("Symmetric", 24, 2, 54, 2, -1, 1),
    Sketcher.Constraint("Symmetric", 25, 2, 55, 2, -1, 1),
    Sketcher.Constraint("Symmetric", 26, 2, 56, 2, -1, 1),
    Sketcher.Constraint("Symmetric", 27, 2, 57, 2, -1, 1),
    Sketcher.Constraint("Symmetric", 28, 2, 58, 2, -1, 1),
    Sketcher.Constraint("Symmetric", 29, 2, 59, 2, -1, 1),
    Sketcher.Constraint("Symmetric", 16, 2, 18, 2, -2),
    Sketcher.Constraint("Symmetric", 15, 2, 19, 2, -2),
    Sketcher.Constraint("Symmetric", 14, 2, 20, 2, -2),
    Sketcher.Constraint("Symmetric", 13, 2, 21, 2, -2),
    Sketcher.Constraint("Symmetric", 12, 2, 22, 2, -2),
    Sketcher.Constraint("Symmetric", 17, 2, 23, 2, -2),
    Sketcher.Constraint("Symmetric", 4, 2, 24, 2, -2),
    Sketcher.Constraint("Symmetric", 3, 2, 25, 2, -2),
    Sketcher.Constraint("Symmetric", 2, 2, 26, 2, -2),
    Sketcher.Constraint("Symmetric", 1, 2, 27, 2, -2),
    Sketcher.Constraint("Symmetric", 0, 2, 28, 2, -2),
    Sketcher.Constraint("Symmetric", 5, 2, 29, 2, -2),
    Sketcher.Constraint("Symmetric", 10, 2, 30, 2, -2),
    Sketcher.Constraint("PointOnObject", 8, 2, -1),
    Sketcher.Constraint("PointOnObject", 11, 2, -1),
    Sketcher.Constraint("Parallel", 0, 3),
    Sketcher.Constraint("Parallel", 1, 4),
    Sketcher.Constraint("Parallel", 2, 5),
    Sketcher.Constraint("Parallel", 6, 9),
    Sketcher.Constraint("Parallel", 8, 11),
    Sketcher.Constraint("Parallel", 12, 15),
    Sketcher.Constraint("Parallel", 13, 16),
    Sketcher.Constraint("Parallel", 14, 17),
    Sketcher.Constraint("Parallel", 11, 32),
    Sketcher.Constraint("Parallel", 32, 35),
    Sketcher.Constraint("Equal", 0, 1),
    Sketcher.Constraint("Equal", 1, 2),
    Sketcher.Constraint("Equal", 2, 3),
    Sketcher.Constraint("Equal", 5, 6),
    Sketcher.Constraint("Equal", 11, 12),
    Sketcher.Constraint("Equal", 12, 13),
    Sketcher.Constraint("Equal", 13, 14),
    Sketcher.Constraint("Equal", 14, 15),
    Sketcher.Constraint("Angle", 0, Q("84 deg")),
    Sketcher.Constraint("Angle", 1, Q("144 deg")),
    Sketcher.Constraint("Angle", 2, Q("-156 deg")),
    Sketcher.Constraint("Angle", 6, Q("120 deg")),
    Sketcher.Constraint("Angle", 12, Q("48 deg")),
    Sketcher.Constraint("Angle", 13, Q("108 deg")),
    Sketcher.Constraint("Angle", 14, Q("168 deg")),
    Sketcher.Constraint("DistanceY", -1, 1, 6, 2, Q("2 mm")),
    Sketcher.Constraint("DistanceX", 7, 2, 7, 1, Q("2.309401 mm")),
    Sketcher.Constraint("DistanceY", -1, 1, 0, 2, Q("13.576701 mm")),
    Sketcher.Constraint("DistanceX", 6, 2, -1, 1, Q("20.345299 mm")),
    Sketcher.Constraint("DistanceX", 15, 2, -1, 1, Q("8.902801 mm")),
    Sketcher.Constraint("DistanceY", 1, 2, 13, 2, Q("7.229802 mm")),
    Sketcher.Constraint("DistanceX", 20, 2, 25, 2, Q("12.146099 mm")),
])
pocket11 = body.newObject("PartDesign::Pocket", "Pocket010")
pocket11.Profile = sketch12
pocket11.Length = 1.6

# Sketch on XZ plane
sketch13 = body.newObject("Sketcher::SketchObject", "Sketch012")
sketch13.AttachmentSupport = (doc.getObject("XZ_Plane"), [""])
sketch13.MapMode = "FlatFace"
sketch13.addGeometry(Part.Circle(V(0, 0, 0), V(0, 0, 1), 10), False)
sketch13.addConstraint([
    Sketcher.Constraint("Coincident", 0, 3, -1, 1),
    Sketcher.Constraint("Diameter", 0, Q("20 mm")),
])
pocket12 = body.newObject("PartDesign::Pocket", "Pocket011")
pocket12.Profile = sketch13
pocket12.Type = "UpToFirst"
pocket12.Reversed = True

# Sketch on XZ plane
sketch14 = body.newObject("Sketcher::SketchObject", "Sketch013")
sketch14.AttachmentSupport = (doc.getObject("XZ_Plane"), [""])
sketch14.MapMode = "FlatFace"
sketch14.addGeometry([
    Part.Circle(V(0, 34.458999, 0), V(0, 0, 1), 1),
    Part.Circle(V(-29.842368, -17.229499, 0), V(0, 0, 1), 1),
    Part.Circle(V(29.842368, -17.229499, 0), V(0, 0, 1), 1),
], False)
sketch14.addConstraint([
    Sketcher.Constraint("Equal", 0, 1),
    Sketcher.Constraint("Equal", 1, 2),
    Sketcher.Constraint("Symmetric", 1, 3, 2, 3, -2),
    Sketcher.Constraint("PointOnObject", 0, 3, -2),
    Sketcher.Constraint("Diameter", 0, Q("2 mm")),
    Sketcher.Constraint("DistanceY", -1, 1, 0, 3, Q("34.458999 mm")),
    Sketcher.Constraint("DistanceY", 1, 3, -1, 1, Q("17.229499 mm")),
    Sketcher.Constraint("DistanceX", 1, 3, -1, 1, Q("29.842368 mm")),
])
pocket13 = body.newObject("PartDesign::Pocket", "Pocket012")
pocket13.Profile = sketch14
pocket13.Length = 5
pocket13.Reversed = True

doc.recompute()
